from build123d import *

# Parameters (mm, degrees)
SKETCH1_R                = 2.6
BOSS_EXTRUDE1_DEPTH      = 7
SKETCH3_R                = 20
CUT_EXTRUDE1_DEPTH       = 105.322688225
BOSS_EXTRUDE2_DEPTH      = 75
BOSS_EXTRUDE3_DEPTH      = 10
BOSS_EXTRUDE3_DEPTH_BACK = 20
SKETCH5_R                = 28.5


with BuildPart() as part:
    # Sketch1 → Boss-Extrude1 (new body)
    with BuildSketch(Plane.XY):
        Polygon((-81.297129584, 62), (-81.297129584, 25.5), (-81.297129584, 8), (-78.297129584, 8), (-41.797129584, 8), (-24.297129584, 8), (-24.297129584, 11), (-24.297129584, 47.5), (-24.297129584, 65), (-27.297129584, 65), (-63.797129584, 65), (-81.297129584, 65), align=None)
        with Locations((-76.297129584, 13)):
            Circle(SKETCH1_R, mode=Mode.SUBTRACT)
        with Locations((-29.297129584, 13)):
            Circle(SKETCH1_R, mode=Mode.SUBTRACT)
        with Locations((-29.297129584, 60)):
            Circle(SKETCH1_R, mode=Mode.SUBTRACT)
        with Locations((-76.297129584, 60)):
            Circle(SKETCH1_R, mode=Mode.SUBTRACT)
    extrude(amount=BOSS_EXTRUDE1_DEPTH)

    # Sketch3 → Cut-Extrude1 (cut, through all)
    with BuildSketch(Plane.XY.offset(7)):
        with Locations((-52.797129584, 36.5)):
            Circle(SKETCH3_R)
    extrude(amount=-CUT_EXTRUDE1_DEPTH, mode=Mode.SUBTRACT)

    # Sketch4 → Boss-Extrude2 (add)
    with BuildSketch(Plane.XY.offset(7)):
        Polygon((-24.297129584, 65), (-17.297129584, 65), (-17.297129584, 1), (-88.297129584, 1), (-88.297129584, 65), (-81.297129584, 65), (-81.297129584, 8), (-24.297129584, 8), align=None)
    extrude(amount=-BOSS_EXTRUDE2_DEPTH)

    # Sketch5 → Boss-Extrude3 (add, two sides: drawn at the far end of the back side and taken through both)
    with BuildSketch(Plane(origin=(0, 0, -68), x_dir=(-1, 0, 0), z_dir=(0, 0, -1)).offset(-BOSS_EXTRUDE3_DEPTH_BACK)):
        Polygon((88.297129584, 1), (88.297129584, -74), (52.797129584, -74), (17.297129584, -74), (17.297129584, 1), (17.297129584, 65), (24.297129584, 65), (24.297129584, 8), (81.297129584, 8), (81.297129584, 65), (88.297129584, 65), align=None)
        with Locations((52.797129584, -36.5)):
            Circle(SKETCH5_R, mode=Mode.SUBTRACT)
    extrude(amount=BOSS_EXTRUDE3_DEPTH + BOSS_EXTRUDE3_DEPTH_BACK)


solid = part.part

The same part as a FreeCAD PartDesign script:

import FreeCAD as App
import Part
import Sketcher

V = App.Vector
Q = App.Units.Quantity

doc = App.newDocument("Part")
params = doc.addObject("Spreadsheet::Sheet", "Params")
for row, (alias, value) in enumerate([
    ("sketch1_diameter", "5.2 mm"),
    ("sketch1_width", "57 mm"),
    ("pad1_length", "7 mm"),
    ("sketch2_diameter", "40 mm"),
    ("sketch3_width", "7 mm"),
    ("sketch3_width2", "57 mm"),
    ("sketch3_height", "64 mm"),
    ("pad2_length", "75 mm"),
    ("sketch4_diameter", "57 mm"),
    ("sketch4_width", "7 mm"),
    ("sketch4_width2", "57 mm"),
    ("sketch4_height", "139 mm"),
    ("pad3_length", "10 mm"),
    ("pad3_length2", "20 mm"),
], start=1):
    params.set(f"A{row}", alias)
    params.set(f"B{row}", "=" + value)
    params.setAlias(f"B{row}", alias)

body = doc.addObject("PartDesign::Body", "Body")

sketch1 = body.newObject("Sketcher::SketchObject", "Sketch")
sketch1.AttachmentSupport = (doc.getObject("XY_Plane"), [""])
sketch1.MapMode = "FlatFace"
sketch1.addGeometry([
    Part.LineSegment(V(-81.3, 8, 0), V(-24.3, 8, 0)),
    Part.LineSegment(V(-24.3, 8, 0), V(-24.3, 65, 0)),
    Part.LineSegment(V(-24.3, 65, 0), V(-81.3, 65, 0)),
    Part.LineSegment(V(-81.3, 65, 0), V(-81.3, 8, 0)),
    Part.Circle(V(-76.3, 13, 0), V(0, 0, 1), 2.6),
    Part.Circle(V(-29.3, 13, 0), V(0, 0, 1), 2.6),
    Part.Circle(V(-76.3, 60, 0), V(0, 0, 1), 2.6),
    Part.Circle(V(-29.3, 60, 0), V(0, 0, 1), 2.6),
], False)
sketch1.addConstraint([
    Sketcher.Constraint("Coincident", 0, 2, 1, 1),
    Sketcher.Constraint("Coincident", 1, 2, 2, 1),
    Sketcher.Constraint("Coincident", 2, 2, 3, 1),
    Sketcher.Constraint("Coincident", 3, 2, 0, 1),
    Sketcher.Constraint("Horizontal", 0),
    Sketcher.Constraint("Vertical", 1),
    Sketcher.Constraint("Horizontal", 2),
    Sketcher.Constraint("Vertical", 3),
    Sketcher.Constraint("Equal", 4, 5),
    Sketcher.Constraint("Equal", 5, 6),
    Sketcher.Constraint("Equal", 6, 7),
    Sketcher.Constraint("Horizontal", 4, 3, 5, 3),
    Sketcher.Constraint("Horizontal", 6, 3, 7, 3),
    Sketcher.Constraint("Vertical", 4, 3, 6, 3),
    Sketcher.Constraint("Vertical", 5, 3, 7, 3),
    Sketcher.Constraint("Equal", 2, 1),
    Sketcher.Constraint("Diameter", 4, Q("5.2 mm")),
    Sketcher.Constraint("DistanceX", 0, 1, 0, 2, Q("57 mm")),
    Sketcher.Constraint("DistanceY", -1, 1, 4, 3, Q("13 mm")),
    Sketcher.Constraint("DistanceY", -1, 1, 6, 3, Q("60 mm")),
    Sketcher.Constraint("DistanceY", -1, 1, 0, 2, Q("8 mm")),
    Sketcher.Constraint("DistanceX", 4, 3, 5, 3, Q("47 mm")),
    Sketcher.Constraint("DistanceX", 5, 3, 0, 2, Q("5 mm")),
    Sketcher.Constraint("DistanceX", 4, 3, -1, 1, Q("76.29713 mm")),
])
sketch1.setExpression("Constraints[16]", "Params.sketch1_diameter")
sketch1.setExpression("Constraints[17]", "Params.sketch1_width")
pad1 = body.newObject("PartDesign::Pad", "Pad")
pad1.Profile = sketch1
pad1.setExpression("Length", "Params.pad1_length")

sketch2 = body.newObject("Sketcher::SketchObject", "Sketch001")
sketch2.AttachmentSupport = (doc.getObject("XY_Plane"), [""])
sketch2.MapMode = "FlatFace"
sketch2.AttachmentOffset = App.Placement(V(0, 0, 7), App.Rotation())
sketch2.addGeometry(Part.Circle(V(-53, 36, 0), V(0, 0, 1), 20), False)
sketch2.addConstraint([
    Sketcher.Constraint("Diameter", 0, Q("40 mm")),
    Sketcher.Constraint("DistanceY", -1, 1, 0, 3, Q("36.5 mm")),
    Sketcher.Constraint("DistanceX", 0, 3, -1, 1, Q("52.79713 mm")),
])
sketch2.setExpression("Constraints[0]", "Params.sketch2_diameter")
pocket1 = body.newObject("PartDesign::Pocket", "Pocket")
pocket1.Profile = sketch2
pocket1.Type = "ThroughAll"

sketch3 = body.newObject("Sketcher::SketchObject", "Sketch002")
sketch3.AttachmentSupport = (doc.getObject("XY_Plane"), [""])
sketch3.MapMode = "FlatFace"
sketch3.AttachmentOffset = App.Placement(V(0, 0, 7), App.Rotation())
sketch3.addGeometry([
    Part.LineSegment(V(-17, 65, 0), V(-24, 65, 0)),
    Part.LineSegment(V(-24, 65, 0), V(-24, 8, 0)),
    Part.LineSegment(V(-24, 8, 0), V(-81, 8, 0)),
    Part.LineSegment(V(-81, 8, 0), V(-81, 65, 0)),
    Part.LineSegment(V(-81, 65, 0), V(-88, 65, 0)),
    Part.LineSegment(V(-88, 65, 0), V(-88, 1, 0)),
    Part.LineSegment(V(-88, 1, 0), V(-17, 1, 0)),
    Part.LineSegment(V(-17, 1, 0), V(-17, 65, 0)),
], False)
sketch3.addConstraint([
    Sketcher.Constraint("Coincident", 0, 2, 1, 1),
    Sketcher.Constraint("Coincident", 1, 2, 2, 1),
    Sketcher.Constraint("Coincident", 2, 2, 3, 1),
    Sketcher.Constraint("Coincident", 3, 2, 4, 1),
    Sketcher.Constraint("Coincident", 4, 2, 5, 1),
    Sketcher.Constraint("Coincident", 5, 2, 6, 1),
    Sketcher.Constraint("Coincident", 6, 2, 7, 1),
    Sketcher.Constraint("Coincident", 7, 2, 0, 1),
    Sketcher.Constraint("Horizontal", 0),
    Sketcher.Constraint("Vertical", 1),
    Sketcher.Constraint("Horizontal", 2),
    Sketcher.Constraint("Vertical", 3),
    Sketcher.Constraint("Horizontal", 4),
    Sketcher.Constraint("Vertical", 5),
    Sketcher.Constraint("Horizontal", 6),
    Sketcher.Constraint("Vertical", 7),
    Sketcher.Constraint("Horizontal", 0, 2, 3, 2),
    Sketcher.Constraint("Equal", 0, 4),
    Sketcher.Constraint("Equal", 2, 1),
    Sketcher.Constraint("DistanceX", 0, 2, 0, 1, Q("7 mm")),
    Sketcher.Constraint("DistanceX", 2, 2, 2, 1, Q("57 mm")),
    Sketcher.Constraint("DistanceY", 5, 2, 5, 1, Q("64 mm")),
    Sketcher.Constraint("DistanceY", -1, 1, 0, 2, Q("65 mm")),
    Sketcher.Constraint("DistanceX", 0, 2, -1, 1, Q("24.29713 mm")),
])
sketch3.setExpression("Constraints[19]", "Params.sketch3_width")
sketch3.setExpression("Constraints[20]", "Params.sketch3_width2")
sketch3.setExpression("Constraints[21]", "Params.sketch3_height")
pad2 = body.newObject("PartDesign::Pad", "Pad001")
pad2.Profile = sketch3
pad2.setExpression("Length", "Params.pad2_length")
pad2.Reversed = True

sketch4 = body.newObject("Sketcher::SketchObject", "Sketch003")
sketch4.AttachmentSupport = (doc.getObject("XY_Plane"), [""])
sketch4.MapMode = "FlatFace"
sketch4.AttachmentOffset = App.Placement(V(0, 0, -68), App.Rotation())
sketch4.addGeometry([
    Part.LineSegment(V(-88, -74, 0), V(-88, 65, 0)),
    Part.LineSegment(V(-88, 65, 0), V(-81, 65, 0)),
    Part.LineSegment(V(-81, 65, 0), V(-81, 8, 0)),
    Part.LineSegment(V(-81, 8, 0), V(-24, 8, 0)),
    Part.LineSegment(V(-24, 8, 0), V(-24, 65, 0)),
    Part.LineSegment(V(-24, 65, 0), V(-17, 65, 0)),
    Part.LineSegment(V(-17, 65, 0), V(-17, -74, 0)),
    Part.LineSegment(V(-17, -74, 0), V(-88, -74, 0)),
    Part.Circle(V(-53, -36, 0), V(0, 0, 1), 28),
], False)
sketch4.addConstraint([
    Sketcher.Constraint("Coincident", 0, 2, 1, 1),
    Sketcher.Constraint("Coincident", 1, 2, 2, 1),
    Sketcher.Constraint("Coincident", 2, 2, 3, 1),
    Sketcher.Constraint("Coincident", 3, 2, 4, 1),
    Sketcher.Constraint("Coincident", 4, 2, 5, 1),
    Sketcher.Constraint("Coincident", 5, 2, 6, 1),
    Sketcher.Constraint("Coincident", 6, 2, 7, 1),
    Sketcher.Constraint("Coincident", 7, 2, 0, 1),
    Sketcher.Constraint("Vertical", 0),
    Sketcher.Constraint("Horizontal", 1),
    Sketcher.Constraint("Vertical", 2),
    Sketcher.Constraint("Horizontal", 3),
    Sketcher.Constraint("Vertical", 4),
    Sketcher.Constraint("Horizontal", 5),
    Sketcher.Constraint("Vertical", 6),
    Sketcher.Constraint("Horizontal", 7),
    Sketcher.Constraint("Horizontal", 1, 2, 4, 2),
    Sketcher.Constraint("Equal", 1, 5),
    Sketcher.Constraint("Equal", 3, 2),
    Sketcher.Constraint("Diameter", 8, Q("57 mm")),
    Sketcher.Constraint("DistanceX", 1, 1, 1, 2, Q("7 mm")),
    Sketcher.Constraint("DistanceX", 3, 1, 3, 2, Q("57 mm")),
    Sketcher.Constraint("DistanceY", 0, 1, 0, 2, Q("139 mm")),
    Sketcher.Constraint("DistanceY", -1, 1, 0, 2, Q("65 mm")),
    Sketcher.Constraint("DistanceY", 8, 3, -1, 1, Q("36.5 mm")),
    Sketcher.Constraint("DistanceX", 0, 2, 8, 3, Q("35.5 mm")),
    Sketcher.Constraint("DistanceX", 8, 3, -1, 1, Q("52.79713 mm")),
])
sketch4.setExpression("Constraints[19]", "Params.sketch4_diameter")
sketch4.setExpression("Constraints[20]", "Params.sketch4_width")
sketch4.setExpression("Constraints[21]", "Params.sketch4_width2")
sketch4.setExpression("Constraints[22]", "Params.sketch4_height")
pad3 = body.newObject("PartDesign::Pad", "Pad002")
pad3.Profile = sketch4
pad3.Type = "TwoLengths"
pad3.setExpression("Length", "Params.pad3_length")
pad3.setExpression("Length2", "Params.pad3_length2")
pad3.Reversed = True

doc.recompute()
